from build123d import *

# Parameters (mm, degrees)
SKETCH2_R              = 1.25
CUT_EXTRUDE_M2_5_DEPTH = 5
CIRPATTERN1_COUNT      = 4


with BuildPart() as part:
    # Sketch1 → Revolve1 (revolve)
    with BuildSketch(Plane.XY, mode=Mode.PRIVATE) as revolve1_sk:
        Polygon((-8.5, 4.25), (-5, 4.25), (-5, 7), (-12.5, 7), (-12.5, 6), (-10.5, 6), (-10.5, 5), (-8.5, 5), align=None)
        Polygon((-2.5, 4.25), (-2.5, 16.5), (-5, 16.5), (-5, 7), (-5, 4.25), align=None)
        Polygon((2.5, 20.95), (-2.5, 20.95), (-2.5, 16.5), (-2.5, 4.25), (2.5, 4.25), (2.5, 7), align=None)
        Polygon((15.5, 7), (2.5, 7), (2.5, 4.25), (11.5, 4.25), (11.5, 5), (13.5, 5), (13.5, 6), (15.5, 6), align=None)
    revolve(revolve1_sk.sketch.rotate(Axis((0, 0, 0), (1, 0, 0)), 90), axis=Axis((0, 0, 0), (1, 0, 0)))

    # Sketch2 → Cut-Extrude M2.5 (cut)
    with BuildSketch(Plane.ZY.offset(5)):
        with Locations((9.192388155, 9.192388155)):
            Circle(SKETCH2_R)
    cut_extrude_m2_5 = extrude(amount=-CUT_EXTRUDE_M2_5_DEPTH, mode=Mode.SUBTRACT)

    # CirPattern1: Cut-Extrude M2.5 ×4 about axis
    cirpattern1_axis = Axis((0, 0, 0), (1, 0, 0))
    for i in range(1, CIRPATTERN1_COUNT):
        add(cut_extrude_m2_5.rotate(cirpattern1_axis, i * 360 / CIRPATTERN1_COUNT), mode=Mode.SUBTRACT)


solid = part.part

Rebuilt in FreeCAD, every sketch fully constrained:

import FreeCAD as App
import Part
import Sketcher

V = App.Vector

doc = App.newDocument("Part")
body = doc.addObject("PartDesign::Body", "Body")

sketch1 = body.newObject("Sketcher::SketchObject", "Sketch")
sketch1.AttachmentSupport = (doc.getObject("XY_Plane"), [""])
sketch1.MapMode = "FlatFace"
sketch1.addGeometry([
    Part.LineSegment(V(-8.5, 4.2, 0), V(11.5, 4.2, 0)),
    Part.LineSegment(V(11.5, 4.2, 0), V(11.5, 5, 0)),
    Part.LineSegment(V(11.5, 5, 0), V(13.5, 5, 0)),
    Part.LineSegment(V(13.5, 5, 0), V(13.5, 6, 0)),
    Part.LineSegment(V(13.5, 6, 0), V(15.5, 6, 0)),
    Part.LineSegment(V(15.5, 6, 0), V(15.5, 7, 0)),
    Part.LineSegment(V(15.5, 7, 0), V(2.5, 7, 0)),
    Part.LineSegment(V(2.5, 7, 0), V(2.5, 20.9, 0)),
    Part.LineSegment(V(2.5, 20.9, 0), V(-2.5, 20.9, 0)),
    Part.LineSegment(V(-2.5, 20.9, 0), V(-2.5, 16.5, 0)),
    Part.LineSegment(V(-2.5, 16.5, 0), V(-5, 16.5, 0)),
    Part.LineSegment(V(-5, 16.5, 0), V(-5, 7, 0)),
    Part.LineSegment(V(-5, 7, 0), V(-12.5, 7, 0)),
    Part.LineSegment(V(-12.5, 7, 0), V(-12.5, 6, 0)),
    Part.LineSegment(V(-12.5, 6, 0), V(-10.5, 6, 0)),
    Part.LineSegment(V(-10.5, 6, 0), V(-10.5, 5, 0)),
    Part.LineSegment(V(-10.5, 5, 0), V(-8.5, 5, 0)),
    Part.LineSegment(V(-8.5, 5, 0), V(-8.5, 4.2, 0)),
], False)
sketch1.addConstraint([
    Sketcher.Constraint("Coincident", 0, 2, 1, 1),
    Sketcher.Constraint("Coincident", 1, 2, 2, 1),
    Sketcher.Constraint("Coincident", 2, 2, 3, 1),
    Sketcher.Constraint("Coincident", 3, 2, 4, 1),
    Sketcher.Constraint("Coincident", 4, 2, 5, 1),
    Sketcher.Constraint("Coincident", 5, 2, 6, 1),
    Sketcher.Constraint("Coincident", 6, 2, 7, 1),
    Sketcher.Constraint("Coincident", 7, 2, 8, 1),
    Sketcher.Constraint("Coincident", 8, 2, 9, 1),
    Sketcher.Constraint("Coincident", 9, 2, 10, 1),
    Sketcher.Constraint("Coincident", 10, 2, 11, 1),
    Sketcher.Constraint("Coincident", 11, 2, 12, 1),
    Sketcher.Constraint("Coincident", 12, 2, 13, 1),
    Sketcher.Constraint("Coincident", 13, 2, 14, 1),
    Sketcher.Constraint("Coincident", 14, 2, 15, 1),
    Sketcher.Constraint("Coincident", 15, 2, 16, 1),
    Sketcher.Constraint("Coincident", 16, 2, 17, 1),
    Sketcher.Constraint("Coincident", 17, 2, 0, 1),
    Sketcher.Constraint("Horizontal", 0),
    Sketcher.Constraint("Vertical", 1),
    Sketcher.Constraint("Horizontal", 2),
    Sketcher.Constraint("Vertical", 3),
    Sketcher.Constraint("Horizontal", 4),
    Sketcher.Constraint("Vertical", 5),
    Sketcher.Constraint("Horizontal", 6),
    Sketcher.Constraint("Vertical", 7),
    Sketcher.Constraint("Horizontal", 8),
    Sketcher.Constraint("Vertical", 9),
    Sketcher.Constraint("Horizontal", 10),
    Sketcher.Constraint("Vertical", 11),
    Sketcher.Constraint("Horizontal", 12),
    Sketcher.Constraint("Vertical", 13),
    Sketcher.Constraint("Horizontal", 14),
    Sketcher.Constraint("Vertical", 15),
    Sketcher.Constraint("Horizontal", 16),
    Sketcher.Constraint("Vertical", 17),
    Sketcher.Constraint("Horizontal", 6, 2, 11, 2),
    Sketcher.Constraint("Horizontal", 4, 2, 13, 2),
    Sketcher.Constraint("Horizontal", 2, 2, 15, 2),
    Sketcher.Constraint("Equal", 2, 4),
    Sketcher.Constraint("Equal", 4, 14),
    Sketcher.Constraint("Equal", 14, 16),
    Sketcher.Constraint("Equal", 3, 5),
    Sketcher.Constraint("DistanceX", 0, 1, 0, 2, 20.0),
    Sketcher.Constraint("DistanceX", 2, 1, 2, 2, 2.0),
    Sketcher.Constraint("DistanceX", 6, 2, 6, 1, 13.0),
    Sketcher.Constraint("DistanceX", 8, 2, 8, 1, 5.0),
    Sketcher.Constraint("DistanceY", 3, 1, 3, 2, 1.0),
    Sketcher.Constraint("DistanceX", 10, 2, 10, 1, 2.5),
    Sketcher.Constraint("DistanceY", 11, 2, 11, 1, 9.5),
    Sketcher.Constraint("DistanceY", -1, 1, 1, 2, 5.0),
    Sketcher.Constraint("DistanceX", 10, 2, -1, 1, 5.0),
    Sketcher.Constraint("DistanceY", 1, 1, 1, 2, 0.75),
    Sketcher.Constraint("DistanceY", 7, 1, 7, 2, 13.95),
])
revolution = body.newObject("PartDesign::Revolution", "Revolution")
revolution.Profile = sketch1
revolution.ReferenceAxis = (sketch1, ["H_Axis"])
revolution.Angle = 360

sketch2 = body.newObject("Sketcher::SketchObject", "Sketch001")
sketch2.AttachmentSupport = (doc.getObject("YZ_Plane"), [""])
sketch2.MapMode = "FlatFace"
sketch2.AttachmentOffset = App.Placement(V(0, 0, -5), App.Rotation())
sketch2.addGeometry(Part.Circle(V(9.2, 9.2, 0), V(0, 0, 1), 1.2), False)
sketch2.addConstraint([
    Sketcher.Constraint("Diameter", 0, 2.5),
    Sketcher.Constraint("DistanceX", -1, 1, 0, 3, 9.192388),
    Sketcher.Constraint("DistanceY", -1, 1, 0, 3, 9.192388),
])
pocket1 = body.newObject("PartDesign::Pocket", "Pocket")
pocket1.Profile = sketch2
pocket1.Length = 5
pocket1.Reversed = True
doc.recompute()

polarpattern = body.newObject("PartDesign::PolarPattern", "PolarPattern")
polarpattern.Originals = [pocket1]
polarpattern.Axis = (doc.getObject("X_Axis"), [""])
polarpattern.Angle = 360
polarpattern.Occurrences = 4
body.Tip = polarpattern

doc.recompute()
